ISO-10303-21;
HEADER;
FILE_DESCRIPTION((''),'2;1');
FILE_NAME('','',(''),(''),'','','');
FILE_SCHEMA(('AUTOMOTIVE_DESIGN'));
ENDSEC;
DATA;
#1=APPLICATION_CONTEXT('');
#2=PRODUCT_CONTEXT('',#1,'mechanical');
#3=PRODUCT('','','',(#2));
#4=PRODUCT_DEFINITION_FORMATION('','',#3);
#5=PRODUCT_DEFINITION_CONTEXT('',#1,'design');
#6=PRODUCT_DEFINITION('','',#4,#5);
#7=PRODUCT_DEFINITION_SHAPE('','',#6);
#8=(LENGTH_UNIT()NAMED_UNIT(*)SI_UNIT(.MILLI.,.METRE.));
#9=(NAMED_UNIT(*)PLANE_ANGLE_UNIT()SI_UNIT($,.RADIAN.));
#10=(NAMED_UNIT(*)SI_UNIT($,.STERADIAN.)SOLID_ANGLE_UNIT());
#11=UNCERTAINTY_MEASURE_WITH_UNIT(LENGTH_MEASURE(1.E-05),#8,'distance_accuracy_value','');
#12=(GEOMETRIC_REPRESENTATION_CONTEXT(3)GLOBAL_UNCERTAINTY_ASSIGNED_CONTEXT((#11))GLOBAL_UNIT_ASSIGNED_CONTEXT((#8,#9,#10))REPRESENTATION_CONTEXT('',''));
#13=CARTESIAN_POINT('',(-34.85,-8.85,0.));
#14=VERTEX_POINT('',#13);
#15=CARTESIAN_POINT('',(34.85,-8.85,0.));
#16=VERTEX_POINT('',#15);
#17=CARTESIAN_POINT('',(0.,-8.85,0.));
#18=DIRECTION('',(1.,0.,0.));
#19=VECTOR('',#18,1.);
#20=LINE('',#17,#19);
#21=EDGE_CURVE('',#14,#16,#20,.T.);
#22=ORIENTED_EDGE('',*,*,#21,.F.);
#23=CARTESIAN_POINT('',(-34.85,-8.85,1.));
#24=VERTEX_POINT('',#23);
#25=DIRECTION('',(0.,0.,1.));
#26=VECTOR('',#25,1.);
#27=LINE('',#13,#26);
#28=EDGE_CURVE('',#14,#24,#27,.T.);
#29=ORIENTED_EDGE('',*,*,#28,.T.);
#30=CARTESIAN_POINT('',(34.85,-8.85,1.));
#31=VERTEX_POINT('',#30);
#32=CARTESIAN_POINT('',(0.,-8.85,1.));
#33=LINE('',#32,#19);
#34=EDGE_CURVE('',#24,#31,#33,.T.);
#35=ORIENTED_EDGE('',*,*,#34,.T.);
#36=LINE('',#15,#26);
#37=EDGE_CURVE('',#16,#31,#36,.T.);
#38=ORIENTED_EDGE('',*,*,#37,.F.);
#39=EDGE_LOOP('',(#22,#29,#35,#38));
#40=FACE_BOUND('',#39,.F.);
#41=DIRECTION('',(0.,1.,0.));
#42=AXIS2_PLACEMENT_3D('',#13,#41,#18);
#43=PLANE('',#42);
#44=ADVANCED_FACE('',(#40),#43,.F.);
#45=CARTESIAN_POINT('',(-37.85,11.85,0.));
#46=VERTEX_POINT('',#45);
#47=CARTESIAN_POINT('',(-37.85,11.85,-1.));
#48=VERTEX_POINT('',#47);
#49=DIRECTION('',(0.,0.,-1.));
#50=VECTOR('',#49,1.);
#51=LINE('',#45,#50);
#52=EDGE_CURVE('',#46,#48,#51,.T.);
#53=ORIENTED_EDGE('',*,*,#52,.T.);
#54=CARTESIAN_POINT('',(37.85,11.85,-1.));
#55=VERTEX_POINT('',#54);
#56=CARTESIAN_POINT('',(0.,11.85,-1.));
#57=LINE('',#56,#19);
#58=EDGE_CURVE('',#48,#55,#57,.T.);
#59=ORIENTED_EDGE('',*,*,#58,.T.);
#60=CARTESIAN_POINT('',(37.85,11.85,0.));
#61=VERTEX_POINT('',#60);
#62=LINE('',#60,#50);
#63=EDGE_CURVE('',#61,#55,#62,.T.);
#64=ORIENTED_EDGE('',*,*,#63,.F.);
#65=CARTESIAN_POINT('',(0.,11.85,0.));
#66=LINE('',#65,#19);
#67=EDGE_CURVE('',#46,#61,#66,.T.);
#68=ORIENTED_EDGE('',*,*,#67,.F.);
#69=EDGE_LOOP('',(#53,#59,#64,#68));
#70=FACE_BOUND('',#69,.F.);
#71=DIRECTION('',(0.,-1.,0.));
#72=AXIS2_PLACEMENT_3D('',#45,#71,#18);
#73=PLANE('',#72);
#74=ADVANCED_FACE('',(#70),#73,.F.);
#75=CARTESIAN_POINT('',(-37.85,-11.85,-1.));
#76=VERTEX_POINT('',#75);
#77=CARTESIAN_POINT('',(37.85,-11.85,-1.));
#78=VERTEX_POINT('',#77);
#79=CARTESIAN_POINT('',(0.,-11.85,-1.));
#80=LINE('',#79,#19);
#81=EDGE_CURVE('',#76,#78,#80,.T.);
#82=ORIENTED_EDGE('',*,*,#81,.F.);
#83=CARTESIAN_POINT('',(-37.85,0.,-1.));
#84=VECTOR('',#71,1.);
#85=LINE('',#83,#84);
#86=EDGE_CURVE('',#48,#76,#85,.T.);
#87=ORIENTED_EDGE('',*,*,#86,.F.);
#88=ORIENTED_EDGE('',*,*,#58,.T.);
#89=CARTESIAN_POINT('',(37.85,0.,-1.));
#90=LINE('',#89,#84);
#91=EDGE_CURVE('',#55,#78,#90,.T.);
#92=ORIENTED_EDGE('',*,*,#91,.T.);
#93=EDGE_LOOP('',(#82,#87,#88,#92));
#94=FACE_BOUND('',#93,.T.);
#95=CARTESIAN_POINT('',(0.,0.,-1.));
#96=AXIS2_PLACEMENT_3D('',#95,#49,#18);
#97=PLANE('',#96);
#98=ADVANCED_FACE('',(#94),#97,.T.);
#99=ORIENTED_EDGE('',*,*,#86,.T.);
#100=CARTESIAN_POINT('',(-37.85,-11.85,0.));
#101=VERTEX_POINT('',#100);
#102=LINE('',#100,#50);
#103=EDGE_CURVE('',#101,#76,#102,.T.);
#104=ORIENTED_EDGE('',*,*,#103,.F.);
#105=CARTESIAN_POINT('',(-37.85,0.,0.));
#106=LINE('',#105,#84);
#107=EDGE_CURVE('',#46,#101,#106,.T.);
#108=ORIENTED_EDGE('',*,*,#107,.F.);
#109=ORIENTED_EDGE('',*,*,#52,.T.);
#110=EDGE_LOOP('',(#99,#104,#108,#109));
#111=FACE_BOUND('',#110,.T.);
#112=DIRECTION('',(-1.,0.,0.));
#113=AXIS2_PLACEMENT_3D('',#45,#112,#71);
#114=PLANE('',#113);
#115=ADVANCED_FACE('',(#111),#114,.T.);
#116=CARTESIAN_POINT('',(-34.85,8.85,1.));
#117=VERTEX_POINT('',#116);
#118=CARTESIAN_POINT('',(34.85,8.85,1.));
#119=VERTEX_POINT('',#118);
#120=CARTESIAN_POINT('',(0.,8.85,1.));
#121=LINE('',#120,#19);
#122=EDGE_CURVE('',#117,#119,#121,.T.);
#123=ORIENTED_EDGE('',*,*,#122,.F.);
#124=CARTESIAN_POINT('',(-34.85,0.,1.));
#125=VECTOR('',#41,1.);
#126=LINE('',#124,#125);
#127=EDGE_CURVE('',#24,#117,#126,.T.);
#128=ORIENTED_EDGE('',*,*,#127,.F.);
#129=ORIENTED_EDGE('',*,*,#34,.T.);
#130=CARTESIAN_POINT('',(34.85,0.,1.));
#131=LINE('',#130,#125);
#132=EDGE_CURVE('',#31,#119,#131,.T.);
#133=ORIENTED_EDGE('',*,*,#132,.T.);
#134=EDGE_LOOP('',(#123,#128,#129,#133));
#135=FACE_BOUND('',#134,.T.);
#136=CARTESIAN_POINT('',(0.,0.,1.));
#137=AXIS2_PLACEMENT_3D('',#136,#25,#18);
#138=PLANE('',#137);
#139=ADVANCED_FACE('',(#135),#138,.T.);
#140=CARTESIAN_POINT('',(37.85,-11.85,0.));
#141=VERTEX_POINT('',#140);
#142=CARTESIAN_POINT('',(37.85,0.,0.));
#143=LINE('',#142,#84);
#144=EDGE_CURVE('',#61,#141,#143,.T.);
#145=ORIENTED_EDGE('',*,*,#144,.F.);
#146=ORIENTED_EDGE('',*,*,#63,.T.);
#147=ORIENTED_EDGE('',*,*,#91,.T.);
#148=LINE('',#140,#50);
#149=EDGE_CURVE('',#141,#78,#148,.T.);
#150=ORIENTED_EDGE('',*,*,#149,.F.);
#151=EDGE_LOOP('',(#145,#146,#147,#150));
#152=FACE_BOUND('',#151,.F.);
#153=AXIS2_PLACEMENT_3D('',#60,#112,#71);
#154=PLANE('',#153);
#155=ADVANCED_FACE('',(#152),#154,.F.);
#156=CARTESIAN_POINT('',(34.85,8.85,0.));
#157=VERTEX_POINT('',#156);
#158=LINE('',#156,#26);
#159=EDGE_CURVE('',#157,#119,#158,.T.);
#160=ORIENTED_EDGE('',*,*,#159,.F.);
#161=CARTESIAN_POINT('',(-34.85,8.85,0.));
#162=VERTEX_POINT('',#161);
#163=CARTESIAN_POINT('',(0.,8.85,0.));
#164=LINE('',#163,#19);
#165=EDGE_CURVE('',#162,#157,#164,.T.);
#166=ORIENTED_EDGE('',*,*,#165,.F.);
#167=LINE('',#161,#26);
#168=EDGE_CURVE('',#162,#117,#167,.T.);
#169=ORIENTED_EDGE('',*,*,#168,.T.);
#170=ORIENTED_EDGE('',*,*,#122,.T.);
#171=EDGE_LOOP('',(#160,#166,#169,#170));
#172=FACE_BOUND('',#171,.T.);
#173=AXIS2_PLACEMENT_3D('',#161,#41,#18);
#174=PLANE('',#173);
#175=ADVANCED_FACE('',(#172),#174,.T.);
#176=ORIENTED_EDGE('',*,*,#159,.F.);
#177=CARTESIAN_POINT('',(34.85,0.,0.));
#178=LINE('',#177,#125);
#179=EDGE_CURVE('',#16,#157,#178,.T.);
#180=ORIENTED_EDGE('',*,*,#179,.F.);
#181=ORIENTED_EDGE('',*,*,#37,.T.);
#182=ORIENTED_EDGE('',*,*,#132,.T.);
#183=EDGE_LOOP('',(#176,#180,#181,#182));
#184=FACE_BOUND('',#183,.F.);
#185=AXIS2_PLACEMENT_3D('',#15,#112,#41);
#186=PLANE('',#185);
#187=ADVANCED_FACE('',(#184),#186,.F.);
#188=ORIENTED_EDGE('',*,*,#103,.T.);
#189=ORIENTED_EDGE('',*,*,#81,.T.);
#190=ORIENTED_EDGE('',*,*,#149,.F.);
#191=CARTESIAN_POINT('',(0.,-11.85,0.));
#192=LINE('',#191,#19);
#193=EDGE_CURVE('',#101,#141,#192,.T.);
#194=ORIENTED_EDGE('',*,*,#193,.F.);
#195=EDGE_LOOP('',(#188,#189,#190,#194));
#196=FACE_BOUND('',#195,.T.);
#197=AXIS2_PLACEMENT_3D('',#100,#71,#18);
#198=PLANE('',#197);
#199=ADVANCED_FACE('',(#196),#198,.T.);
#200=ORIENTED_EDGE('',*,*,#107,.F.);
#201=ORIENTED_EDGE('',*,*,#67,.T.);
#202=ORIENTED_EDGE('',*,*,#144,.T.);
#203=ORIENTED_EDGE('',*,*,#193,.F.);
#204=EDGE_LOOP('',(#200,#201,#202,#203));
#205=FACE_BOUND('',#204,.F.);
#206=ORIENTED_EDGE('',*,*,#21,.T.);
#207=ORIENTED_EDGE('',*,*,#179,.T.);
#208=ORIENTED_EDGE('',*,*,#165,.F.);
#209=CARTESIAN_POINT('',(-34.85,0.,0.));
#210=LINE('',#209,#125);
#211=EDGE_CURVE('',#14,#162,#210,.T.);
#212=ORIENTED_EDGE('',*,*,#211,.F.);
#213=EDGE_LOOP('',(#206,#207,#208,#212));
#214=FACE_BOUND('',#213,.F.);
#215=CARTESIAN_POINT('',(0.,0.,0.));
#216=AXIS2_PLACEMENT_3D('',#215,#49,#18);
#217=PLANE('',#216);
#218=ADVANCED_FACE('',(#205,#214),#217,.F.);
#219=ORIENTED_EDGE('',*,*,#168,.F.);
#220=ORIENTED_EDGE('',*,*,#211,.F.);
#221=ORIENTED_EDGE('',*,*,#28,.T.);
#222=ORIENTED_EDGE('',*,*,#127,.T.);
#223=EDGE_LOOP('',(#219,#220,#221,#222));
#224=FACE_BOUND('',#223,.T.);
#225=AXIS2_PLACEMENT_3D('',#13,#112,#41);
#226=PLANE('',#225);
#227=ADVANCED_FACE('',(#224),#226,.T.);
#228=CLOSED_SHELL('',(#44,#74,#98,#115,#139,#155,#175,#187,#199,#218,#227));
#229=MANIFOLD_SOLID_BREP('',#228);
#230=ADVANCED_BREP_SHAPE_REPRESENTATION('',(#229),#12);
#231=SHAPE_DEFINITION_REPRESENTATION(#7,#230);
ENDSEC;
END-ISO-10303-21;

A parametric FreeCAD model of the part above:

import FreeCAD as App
import Part
import Sketcher
from FreeCAD import Vector

doc = App.newDocument("Part")
params = doc.addObject("Spreadsheet::Sheet", "Params")
for row, (alias, value) in enumerate([
    ("sketch1_width", "69.7 mm"),
    ("sketch1_height", "17.7 mm"),
    ("pad1_length", "1 mm"),
    ("sketch2_width", "75.7 mm"),
    ("sketch2_height", "23.7 mm"),
    ("pad2_length", "1 mm"),
], start=1):
    params.set(f"A{row}", alias)
    params.set(f"B{row}", "=" + value)
    params.setAlias(f"B{row}", alias)

body = doc.addObject("PartDesign::Body", "Body")

# Sketch on XY plane
sketch1 = body.newObject("Sketcher::SketchObject", "Sketch")
sketch1.AttachmentSupport = (doc.getObject("XY_Plane"), [""])
sketch1.MapMode = "FlatFace"
sketch1.addGeometry([
    Part.LineSegment(Vector(-35, 9, 0), Vector(-35, -9, 0)),
    Part.LineSegment(Vector(-35, -9, 0), Vector(35, -9, 0)),
    Part.LineSegment(Vector(35, -9, 0), Vector(35, 9, 0)),
    Part.LineSegment(Vector(35, 9, 0), Vector(-35, 9, 0)),
], False)
sketch1.addConstraint([
    Sketcher.Constraint("Coincident", 0, 2, 1, 1),
    Sketcher.Constraint("Coincident", 1, 2, 2, 1),
    Sketcher.Constraint("Coincident", 2, 2, 3, 1),
    Sketcher.Constraint("Coincident", 3, 2, 0, 1),
    Sketcher.Constraint("Vertical", 0),
    Sketcher.Constraint("Horizontal", 1),
    Sketcher.Constraint("Vertical", 2),
    Sketcher.Constraint("Horizontal", 3),
    Sketcher.Constraint("Symmetric", 0, 2, 2, 2, -1, 1),
    Sketcher.Constraint("DistanceX", 1, 1, 1, 2, 69.7),
    Sketcher.Constraint("DistanceY", 0, 2, 0, 1, 17.7),
])
sketch1.setExpression("Constraints[9]", "Params.sketch1_width")
sketch1.setExpression("Constraints[10]", "Params.sketch1_height")
pad1 = body.newObject("PartDesign::Pad", "Pad")
pad1.Profile = sketch1
pad1.setExpression("Length", "Params.pad1_length")

# Sketch on XY plane
sketch2 = body.newObject("Sketcher::SketchObject", "Sketch001")
sketch2.AttachmentSupport = (doc.getObject("XY_Plane"), [""])
sketch2.MapMode = "FlatFace"
sketch2.addGeometry([
    Part.LineSegment(Vector(-38, -12, 0), Vector(-38, 12, 0)),
    Part.LineSegment(Vector(-38, 12, 0), Vector(38, 12, 0)),
    Part.LineSegment(Vector(38, 12, 0), Vector(38, -12, 0)),
    Part.LineSegment(Vector(38, -12, 0), Vector(-38, -12, 0)),
], False)
sketch2.addConstraint([
    Sketcher.Constraint("Coincident", 0, 2, 1, 1),
    Sketcher.Constraint("Coincident", 1, 2, 2, 1),
    Sketcher.Constraint("Coincident", 2, 2, 3, 1),
    Sketcher.Constraint("Coincident", 3, 2, 0, 1),
    Sketcher.Constraint("Vertical", 0),
    Sketcher.Constraint("Horizontal", 1),
    Sketcher.Constraint("Vertical", 2),
    Sketcher.Constraint("Horizontal", 3),
    Sketcher.Constraint("Symmetric", 0, 2, 2, 2, -1, 1),
    Sketcher.Constraint("DistanceX", 1, 1, 1, 2, 75.7),
    Sketcher.Constraint("DistanceY", 0, 1, 0, 2, 23.7),
])
sketch2.setExpression("Constraints[9]", "Params.sketch2_width")
sketch2.setExpression("Constraints[10]", "Params.sketch2_height")
pad2 = body.newObject("PartDesign::Pad", "Pad001")
pad2.Profile = sketch2
pad2.setExpression("Length", "Params.pad2_length")
pad2.Reversed = True

doc.recompute()
